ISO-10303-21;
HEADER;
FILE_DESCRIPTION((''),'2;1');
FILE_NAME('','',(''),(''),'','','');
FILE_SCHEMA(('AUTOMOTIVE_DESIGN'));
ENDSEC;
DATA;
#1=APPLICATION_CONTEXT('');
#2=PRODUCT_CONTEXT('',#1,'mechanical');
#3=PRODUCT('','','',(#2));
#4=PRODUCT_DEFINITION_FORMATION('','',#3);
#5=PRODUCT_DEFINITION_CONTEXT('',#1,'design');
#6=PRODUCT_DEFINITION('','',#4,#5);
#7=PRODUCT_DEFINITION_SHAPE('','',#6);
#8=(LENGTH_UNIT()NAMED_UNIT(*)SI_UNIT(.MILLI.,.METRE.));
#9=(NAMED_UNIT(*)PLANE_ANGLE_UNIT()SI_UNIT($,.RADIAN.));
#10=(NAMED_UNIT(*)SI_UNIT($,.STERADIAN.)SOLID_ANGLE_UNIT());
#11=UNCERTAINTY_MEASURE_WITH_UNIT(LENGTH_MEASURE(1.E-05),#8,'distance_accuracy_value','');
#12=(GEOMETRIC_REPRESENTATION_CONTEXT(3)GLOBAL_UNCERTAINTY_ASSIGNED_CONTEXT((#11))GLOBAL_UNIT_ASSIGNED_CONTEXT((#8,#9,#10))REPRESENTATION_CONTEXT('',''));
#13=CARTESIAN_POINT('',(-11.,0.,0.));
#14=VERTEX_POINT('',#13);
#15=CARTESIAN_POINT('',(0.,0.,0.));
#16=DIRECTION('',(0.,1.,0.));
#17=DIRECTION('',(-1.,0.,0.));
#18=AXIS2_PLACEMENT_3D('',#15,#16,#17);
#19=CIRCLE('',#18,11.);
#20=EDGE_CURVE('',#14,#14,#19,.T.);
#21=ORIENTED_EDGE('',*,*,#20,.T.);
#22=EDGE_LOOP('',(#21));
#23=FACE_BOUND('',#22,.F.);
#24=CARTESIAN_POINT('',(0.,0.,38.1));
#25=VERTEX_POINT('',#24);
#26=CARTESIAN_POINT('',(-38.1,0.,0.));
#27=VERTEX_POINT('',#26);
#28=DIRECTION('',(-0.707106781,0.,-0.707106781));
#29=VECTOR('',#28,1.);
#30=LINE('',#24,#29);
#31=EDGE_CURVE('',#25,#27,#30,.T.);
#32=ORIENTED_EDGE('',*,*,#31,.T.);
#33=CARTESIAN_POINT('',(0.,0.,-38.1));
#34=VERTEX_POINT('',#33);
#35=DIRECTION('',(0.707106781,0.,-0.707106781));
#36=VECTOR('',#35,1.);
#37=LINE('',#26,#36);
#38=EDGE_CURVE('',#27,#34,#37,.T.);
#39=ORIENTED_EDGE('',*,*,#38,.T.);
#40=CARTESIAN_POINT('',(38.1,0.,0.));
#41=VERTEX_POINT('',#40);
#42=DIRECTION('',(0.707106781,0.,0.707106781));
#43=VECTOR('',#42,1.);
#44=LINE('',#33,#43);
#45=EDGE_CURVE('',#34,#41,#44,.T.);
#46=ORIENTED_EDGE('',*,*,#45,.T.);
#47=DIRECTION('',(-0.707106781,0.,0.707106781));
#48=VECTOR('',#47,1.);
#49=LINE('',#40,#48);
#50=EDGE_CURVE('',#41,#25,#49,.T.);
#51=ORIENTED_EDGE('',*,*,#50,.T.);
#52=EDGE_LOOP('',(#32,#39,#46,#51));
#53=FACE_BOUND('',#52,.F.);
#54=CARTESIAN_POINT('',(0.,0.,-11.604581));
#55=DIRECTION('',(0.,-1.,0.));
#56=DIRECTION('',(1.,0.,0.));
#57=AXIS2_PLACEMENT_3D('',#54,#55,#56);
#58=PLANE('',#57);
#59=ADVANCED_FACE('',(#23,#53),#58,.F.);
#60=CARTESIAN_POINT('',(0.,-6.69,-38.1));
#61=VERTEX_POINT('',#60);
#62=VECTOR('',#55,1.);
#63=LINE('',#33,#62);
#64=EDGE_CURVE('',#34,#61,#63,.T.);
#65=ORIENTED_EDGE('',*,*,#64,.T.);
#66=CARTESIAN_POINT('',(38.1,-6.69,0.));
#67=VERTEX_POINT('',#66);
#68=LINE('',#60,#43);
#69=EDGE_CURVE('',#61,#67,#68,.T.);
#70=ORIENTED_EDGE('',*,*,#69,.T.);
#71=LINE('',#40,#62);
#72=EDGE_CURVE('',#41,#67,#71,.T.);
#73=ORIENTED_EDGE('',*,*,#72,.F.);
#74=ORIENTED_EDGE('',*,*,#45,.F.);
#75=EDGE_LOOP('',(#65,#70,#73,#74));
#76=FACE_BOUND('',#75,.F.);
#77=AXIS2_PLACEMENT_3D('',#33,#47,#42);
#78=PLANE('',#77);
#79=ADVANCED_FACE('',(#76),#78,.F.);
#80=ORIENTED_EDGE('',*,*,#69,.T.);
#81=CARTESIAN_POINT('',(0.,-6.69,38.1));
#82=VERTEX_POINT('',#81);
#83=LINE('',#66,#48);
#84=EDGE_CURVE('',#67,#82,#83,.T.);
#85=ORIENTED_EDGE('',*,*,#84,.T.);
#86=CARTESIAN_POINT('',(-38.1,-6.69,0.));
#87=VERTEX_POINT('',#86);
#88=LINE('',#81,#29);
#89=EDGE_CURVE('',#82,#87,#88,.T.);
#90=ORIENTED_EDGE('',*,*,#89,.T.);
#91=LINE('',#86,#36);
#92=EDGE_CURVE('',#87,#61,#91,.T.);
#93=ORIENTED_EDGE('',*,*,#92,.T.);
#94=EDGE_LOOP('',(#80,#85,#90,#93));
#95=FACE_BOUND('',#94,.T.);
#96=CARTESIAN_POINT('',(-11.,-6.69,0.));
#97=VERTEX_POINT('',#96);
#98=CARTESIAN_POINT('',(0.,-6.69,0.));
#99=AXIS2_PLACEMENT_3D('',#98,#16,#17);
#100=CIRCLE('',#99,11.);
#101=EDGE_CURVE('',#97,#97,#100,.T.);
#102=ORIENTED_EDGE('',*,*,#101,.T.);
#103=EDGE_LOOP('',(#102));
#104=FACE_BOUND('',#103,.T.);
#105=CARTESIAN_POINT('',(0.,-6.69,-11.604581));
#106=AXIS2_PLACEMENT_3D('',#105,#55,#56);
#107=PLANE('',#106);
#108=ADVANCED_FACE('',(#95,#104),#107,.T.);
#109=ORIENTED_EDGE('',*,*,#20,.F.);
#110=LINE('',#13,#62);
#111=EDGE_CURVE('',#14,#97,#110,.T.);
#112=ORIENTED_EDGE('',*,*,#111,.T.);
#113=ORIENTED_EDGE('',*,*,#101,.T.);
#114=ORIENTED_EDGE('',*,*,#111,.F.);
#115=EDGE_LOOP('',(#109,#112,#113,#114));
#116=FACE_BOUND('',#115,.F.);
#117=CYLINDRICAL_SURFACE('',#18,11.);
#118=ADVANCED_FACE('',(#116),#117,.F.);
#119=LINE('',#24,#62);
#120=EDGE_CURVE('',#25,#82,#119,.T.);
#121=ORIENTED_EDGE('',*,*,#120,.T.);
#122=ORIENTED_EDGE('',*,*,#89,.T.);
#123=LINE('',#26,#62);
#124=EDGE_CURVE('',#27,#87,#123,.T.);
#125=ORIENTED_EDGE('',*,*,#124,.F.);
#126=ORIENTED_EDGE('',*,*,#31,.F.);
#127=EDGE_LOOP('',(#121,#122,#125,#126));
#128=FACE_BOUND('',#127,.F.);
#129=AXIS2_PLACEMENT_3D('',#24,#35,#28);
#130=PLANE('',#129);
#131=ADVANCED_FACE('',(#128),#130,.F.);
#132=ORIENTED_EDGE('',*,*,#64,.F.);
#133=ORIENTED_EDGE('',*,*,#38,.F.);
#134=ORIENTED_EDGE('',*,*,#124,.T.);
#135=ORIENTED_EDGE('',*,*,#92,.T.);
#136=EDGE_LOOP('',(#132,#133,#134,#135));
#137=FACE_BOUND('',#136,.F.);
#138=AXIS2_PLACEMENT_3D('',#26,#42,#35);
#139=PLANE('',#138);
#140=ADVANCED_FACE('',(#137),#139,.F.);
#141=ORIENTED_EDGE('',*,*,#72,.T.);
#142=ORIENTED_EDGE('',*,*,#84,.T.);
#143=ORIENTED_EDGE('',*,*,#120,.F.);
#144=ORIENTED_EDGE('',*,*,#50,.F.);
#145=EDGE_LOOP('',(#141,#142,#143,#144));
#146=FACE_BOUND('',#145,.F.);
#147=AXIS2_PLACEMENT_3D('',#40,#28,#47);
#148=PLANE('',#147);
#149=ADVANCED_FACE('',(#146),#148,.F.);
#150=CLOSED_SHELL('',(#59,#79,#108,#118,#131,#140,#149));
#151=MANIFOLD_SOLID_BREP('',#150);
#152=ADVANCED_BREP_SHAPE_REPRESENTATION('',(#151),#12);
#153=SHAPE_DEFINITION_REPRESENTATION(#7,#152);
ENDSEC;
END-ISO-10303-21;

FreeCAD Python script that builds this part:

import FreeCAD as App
import Part
import Sketcher
from FreeCAD import Vector
Q = App.Units.Quantity


def add_polygon(sketch, points):
    """Adds a closed chain of lines whose ends are joined by coincident constraints."""
    first, n = sketch.GeometryCount, len(points)
    for a, b in zip(points, points[1:] + points[:1]):
        sketch.addGeometry(Part.LineSegment(App.Vector(*a, 0), App.Vector(*b, 0)), False)
    for i in range(n):
        sketch.addConstraint(Sketcher.Constraint("Coincident", first + i, 2, first + (i + 1) % n, 1))

doc = App.newDocument("Part")
body = doc.addObject("PartDesign::Body", "Body")

sketch1 = body.newObject("Sketcher::SketchObject", "Sketch")
sketch1.AttachmentSupport = (doc.getObject("XZ_Plane"), [""])
sketch1.MapMode = "FlatFace"
add_polygon(sketch1, [(-38, 0), (0, -38), (38, 0), (0, 38)])
sketch1.addGeometry(Part.Circle(Vector(0, 0, 0), Vector(0, 0, 1), 11), False)
sketch1.addConstraint(Sketcher.Constraint("Coincident", 4, 3, -1, 1))
sketch1.addConstraint(Sketcher.Constraint("Symmetric", 0, 2, 2, 2, -1, 1))
sketch1.addConstraint(Sketcher.Constraint("Symmetric", 1, 2, 3, 2, -1, 1))
sketch1.addConstraint(Sketcher.Constraint("PointOnObject", 0, 2, -2))
sketch1.addConstraint(Sketcher.Constraint("PointOnObject", 1, 2, -1))
sketch1.addConstraint(Sketcher.Constraint("Perpendicular", 0, 1))
sketch1.addConstraint(Sketcher.Constraint("Diameter", 4, Q("22 mm")))
sketch1.addConstraint(Sketcher.Constraint("DistanceY", 0, 2, -1, 1, Q("38.1 mm")))
pad1 = body.newObject("PartDesign::Pad", "Pad")
pad1.Profile = sketch1
pad1.Length = 6.69

doc.recompute()
